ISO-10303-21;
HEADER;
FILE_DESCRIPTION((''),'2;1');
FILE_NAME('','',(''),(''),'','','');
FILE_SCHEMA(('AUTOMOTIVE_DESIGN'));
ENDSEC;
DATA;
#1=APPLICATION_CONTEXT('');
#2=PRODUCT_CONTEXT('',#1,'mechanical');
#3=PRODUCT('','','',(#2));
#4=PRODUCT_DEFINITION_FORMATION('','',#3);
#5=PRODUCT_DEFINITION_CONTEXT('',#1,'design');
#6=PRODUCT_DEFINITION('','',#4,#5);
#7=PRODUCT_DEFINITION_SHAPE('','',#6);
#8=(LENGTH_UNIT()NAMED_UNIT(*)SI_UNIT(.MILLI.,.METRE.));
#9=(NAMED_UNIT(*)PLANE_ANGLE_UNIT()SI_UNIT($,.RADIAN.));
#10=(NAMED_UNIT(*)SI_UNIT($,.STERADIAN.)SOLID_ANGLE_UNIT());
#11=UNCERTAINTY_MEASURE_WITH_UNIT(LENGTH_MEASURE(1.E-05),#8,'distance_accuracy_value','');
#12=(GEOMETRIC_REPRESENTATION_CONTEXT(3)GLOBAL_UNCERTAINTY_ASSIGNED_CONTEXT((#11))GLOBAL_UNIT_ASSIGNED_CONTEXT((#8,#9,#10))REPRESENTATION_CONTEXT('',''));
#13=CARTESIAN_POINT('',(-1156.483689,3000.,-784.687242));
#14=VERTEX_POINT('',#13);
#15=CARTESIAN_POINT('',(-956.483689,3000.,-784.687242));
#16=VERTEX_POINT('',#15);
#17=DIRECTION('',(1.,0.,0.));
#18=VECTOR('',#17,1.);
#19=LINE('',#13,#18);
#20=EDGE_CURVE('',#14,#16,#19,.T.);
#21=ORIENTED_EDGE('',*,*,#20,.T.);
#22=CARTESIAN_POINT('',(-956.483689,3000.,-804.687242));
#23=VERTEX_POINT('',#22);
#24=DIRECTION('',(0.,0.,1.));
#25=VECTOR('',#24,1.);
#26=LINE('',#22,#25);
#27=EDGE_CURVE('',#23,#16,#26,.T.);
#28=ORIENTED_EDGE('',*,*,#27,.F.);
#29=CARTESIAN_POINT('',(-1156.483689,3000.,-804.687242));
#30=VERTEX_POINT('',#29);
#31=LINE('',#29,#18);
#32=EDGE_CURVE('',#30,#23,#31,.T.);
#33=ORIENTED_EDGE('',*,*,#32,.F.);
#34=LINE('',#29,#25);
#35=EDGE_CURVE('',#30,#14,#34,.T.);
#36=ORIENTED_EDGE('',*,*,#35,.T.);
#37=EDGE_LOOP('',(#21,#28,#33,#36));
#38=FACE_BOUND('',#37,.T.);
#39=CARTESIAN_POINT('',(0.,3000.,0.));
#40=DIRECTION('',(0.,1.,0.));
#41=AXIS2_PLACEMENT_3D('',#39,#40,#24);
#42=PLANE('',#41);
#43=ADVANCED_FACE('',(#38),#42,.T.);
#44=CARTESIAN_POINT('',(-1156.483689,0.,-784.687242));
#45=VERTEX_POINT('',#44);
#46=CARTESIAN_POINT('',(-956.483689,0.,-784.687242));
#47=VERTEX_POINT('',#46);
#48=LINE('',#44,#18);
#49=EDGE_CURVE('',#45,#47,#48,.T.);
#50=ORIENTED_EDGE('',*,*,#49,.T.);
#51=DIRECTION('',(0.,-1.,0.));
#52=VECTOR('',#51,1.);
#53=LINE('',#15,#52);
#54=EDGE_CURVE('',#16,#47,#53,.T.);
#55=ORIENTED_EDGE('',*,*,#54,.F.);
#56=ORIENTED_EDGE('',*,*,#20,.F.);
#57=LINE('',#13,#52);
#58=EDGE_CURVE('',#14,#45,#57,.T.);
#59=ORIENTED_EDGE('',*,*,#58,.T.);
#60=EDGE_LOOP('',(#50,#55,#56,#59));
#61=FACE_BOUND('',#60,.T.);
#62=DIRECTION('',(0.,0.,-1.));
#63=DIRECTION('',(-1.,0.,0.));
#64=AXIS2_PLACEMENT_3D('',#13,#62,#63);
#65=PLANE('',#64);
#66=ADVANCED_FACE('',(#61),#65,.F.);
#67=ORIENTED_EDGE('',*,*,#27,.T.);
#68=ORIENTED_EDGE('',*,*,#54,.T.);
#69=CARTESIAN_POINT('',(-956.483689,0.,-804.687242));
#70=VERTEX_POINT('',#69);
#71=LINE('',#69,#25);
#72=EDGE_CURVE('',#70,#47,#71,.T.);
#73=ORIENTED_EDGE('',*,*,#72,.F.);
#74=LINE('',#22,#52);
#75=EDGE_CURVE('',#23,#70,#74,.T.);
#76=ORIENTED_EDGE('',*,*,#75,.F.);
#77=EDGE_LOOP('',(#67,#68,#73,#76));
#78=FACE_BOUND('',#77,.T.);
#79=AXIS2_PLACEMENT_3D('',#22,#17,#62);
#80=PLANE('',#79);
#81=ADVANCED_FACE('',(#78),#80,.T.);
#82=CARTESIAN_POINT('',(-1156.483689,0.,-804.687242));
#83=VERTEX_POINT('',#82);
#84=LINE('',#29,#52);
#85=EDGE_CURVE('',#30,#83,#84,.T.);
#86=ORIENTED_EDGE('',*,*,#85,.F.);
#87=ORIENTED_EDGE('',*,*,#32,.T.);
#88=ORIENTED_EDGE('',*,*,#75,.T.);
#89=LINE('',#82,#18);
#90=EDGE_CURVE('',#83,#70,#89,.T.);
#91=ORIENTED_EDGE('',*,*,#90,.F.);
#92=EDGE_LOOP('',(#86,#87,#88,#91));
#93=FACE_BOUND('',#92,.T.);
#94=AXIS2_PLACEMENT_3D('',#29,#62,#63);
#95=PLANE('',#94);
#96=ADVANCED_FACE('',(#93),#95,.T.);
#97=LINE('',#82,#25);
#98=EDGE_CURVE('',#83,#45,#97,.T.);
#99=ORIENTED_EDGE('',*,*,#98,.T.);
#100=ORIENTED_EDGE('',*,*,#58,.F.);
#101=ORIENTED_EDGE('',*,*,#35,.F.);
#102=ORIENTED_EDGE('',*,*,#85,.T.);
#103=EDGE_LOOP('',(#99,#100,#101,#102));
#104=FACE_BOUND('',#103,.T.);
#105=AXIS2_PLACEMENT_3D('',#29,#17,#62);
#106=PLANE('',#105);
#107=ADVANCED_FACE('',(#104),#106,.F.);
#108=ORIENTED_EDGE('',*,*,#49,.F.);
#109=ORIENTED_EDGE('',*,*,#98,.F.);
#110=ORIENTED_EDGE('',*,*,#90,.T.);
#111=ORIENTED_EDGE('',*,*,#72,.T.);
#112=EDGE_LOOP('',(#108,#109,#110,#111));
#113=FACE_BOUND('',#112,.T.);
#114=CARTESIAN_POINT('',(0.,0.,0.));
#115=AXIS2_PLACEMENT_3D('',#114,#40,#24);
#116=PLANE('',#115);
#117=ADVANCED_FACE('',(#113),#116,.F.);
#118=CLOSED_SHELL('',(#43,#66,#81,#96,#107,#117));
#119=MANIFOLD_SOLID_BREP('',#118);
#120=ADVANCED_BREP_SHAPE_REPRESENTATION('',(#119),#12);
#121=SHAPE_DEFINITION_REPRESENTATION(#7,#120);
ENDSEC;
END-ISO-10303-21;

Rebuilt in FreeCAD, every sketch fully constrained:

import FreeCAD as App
import Part
import Sketcher

V = App.Vector
Q = App.Units.Quantity

doc = App.newDocument("Part")
body = doc.addObject("PartDesign::Body", "Body")

sketch1 = body.newObject("Sketcher::SketchObject", "Sketch")
sketch1.AttachmentSupport = (doc.getObject("XZ_Plane"), [""])
sketch1.MapMode = "FlatFace"
sketch1.addGeometry(Part.LineSegment(V(-1156, -805, 0), V(-1156, -785, 0)), False)
sketch1.addGeometry(Part.LineSegment(V(-1156, -785, 0), V(-956, -785, 0)), False)
sketch1.addGeometry(Part.LineSegment(V(-956, -785, 0), V(-956, -805, 0)), False)
sketch1.addGeometry(Part.LineSegment(V(-956, -805, 0), V(-1156, -805, 0)), False)
sketch1.addConstraint(Sketcher.Constraint("Coincident", 0, 2, 1, 1))
sketch1.addConstraint(Sketcher.Constraint("Coincident", 1, 2, 2, 1))
sketch1.addConstraint(Sketcher.Constraint("Coincident", 2, 2, 3, 1))
sketch1.addConstraint(Sketcher.Constraint("Coincident", 3, 2, 0, 1))
sketch1.addConstraint(Sketcher.Constraint("Vertical", 0))
sketch1.addConstraint(Sketcher.Constraint("Horizontal", 1))
sketch1.addConstraint(Sketcher.Constraint("Vertical", 2))
sketch1.addConstraint(Sketcher.Constraint("Horizontal", 3))
sketch1.addConstraint(Sketcher.Constraint("DistanceX", 1, 1, 1, 2, Q("200 mm")))
sketch1.addConstraint(Sketcher.Constraint("DistanceY", 0, 1, 0, 2, Q("20 mm")))
sketch1.addConstraint(Sketcher.Constraint("DistanceX", 0, 2, -1, 1, Q("1156.483689 mm")))
sketch1.addConstraint(Sketcher.Constraint("DistanceY", 0, 2, -1, 1, Q("784.687242 mm")))
pad1 = body.newObject("PartDesign::Pad", "Pad")
pad1.Profile = sketch1
pad1.Length = 3000
pad1.Reversed = True

doc.recompute()
